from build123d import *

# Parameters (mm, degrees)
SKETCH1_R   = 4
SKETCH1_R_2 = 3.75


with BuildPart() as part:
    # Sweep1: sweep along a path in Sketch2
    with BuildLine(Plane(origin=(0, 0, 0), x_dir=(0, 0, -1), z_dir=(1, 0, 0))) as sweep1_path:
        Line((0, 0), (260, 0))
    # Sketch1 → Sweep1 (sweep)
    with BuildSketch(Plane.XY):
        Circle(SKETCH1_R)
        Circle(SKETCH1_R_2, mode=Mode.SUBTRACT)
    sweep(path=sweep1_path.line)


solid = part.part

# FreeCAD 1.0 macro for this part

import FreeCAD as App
import Part
import Sketcher
from FreeCAD import Vector
Q = App.Units.Quantity

doc = App.newDocument("Part")
body = doc.addObject("PartDesign::Body", "Body")

sketch1 = body.newObject("Sketcher::SketchObject", "Sketch")
sketch1.AttachmentSupport = (doc.getObject("XY_Plane"), [""])
sketch1.MapMode = "FlatFace"
sketch1.addGeometry(Part.Circle(Vector(0, 0, 0), Vector(0, 0, 1), 4), False)
sketch1.addGeometry(Part.Circle(Vector(0, 0, 0), Vector(0, 0, 1), 3.8), False)
sketch1.addConstraint(Sketcher.Constraint("Coincident", 0, 3, -1, 1))
sketch1.addConstraint(Sketcher.Constraint("Coincident", 1, 3, -1, 1))
sketch1.addConstraint(Sketcher.Constraint("Diameter", 0, Q("8 mm")))
sketch1.addConstraint(Sketcher.Constraint("Diameter", 1, Q("7.5 mm")))

sketch2 = body.newObject("Sketcher::SketchObject", "Sketch001")
sketch2.AttachmentSupport = (doc.getObject("XZ_Plane"), [""])
sketch2.MapMode = "FlatFace"
sketch2.addGeometry(Part.LineSegment(Vector(0, 0, 0), Vector(0, -260, 0)), False)
sketch2.addConstraint(Sketcher.Constraint("Vertical", 0))
sketch2.addConstraint(Sketcher.Constraint("Coincident", 0, 1, -1, 1))
sketch2.addConstraint(Sketcher.Constraint("DistanceY", 0, 2, 0, 1, Q("260 mm")))
doc.recompute()

additivepipe = body.newObject("PartDesign::AdditivePipe", "AdditivePipe")
additivepipe.Profile = sketch1
additivepipe.Spine = (sketch2, ["Edge1"])

doc.recompute()
